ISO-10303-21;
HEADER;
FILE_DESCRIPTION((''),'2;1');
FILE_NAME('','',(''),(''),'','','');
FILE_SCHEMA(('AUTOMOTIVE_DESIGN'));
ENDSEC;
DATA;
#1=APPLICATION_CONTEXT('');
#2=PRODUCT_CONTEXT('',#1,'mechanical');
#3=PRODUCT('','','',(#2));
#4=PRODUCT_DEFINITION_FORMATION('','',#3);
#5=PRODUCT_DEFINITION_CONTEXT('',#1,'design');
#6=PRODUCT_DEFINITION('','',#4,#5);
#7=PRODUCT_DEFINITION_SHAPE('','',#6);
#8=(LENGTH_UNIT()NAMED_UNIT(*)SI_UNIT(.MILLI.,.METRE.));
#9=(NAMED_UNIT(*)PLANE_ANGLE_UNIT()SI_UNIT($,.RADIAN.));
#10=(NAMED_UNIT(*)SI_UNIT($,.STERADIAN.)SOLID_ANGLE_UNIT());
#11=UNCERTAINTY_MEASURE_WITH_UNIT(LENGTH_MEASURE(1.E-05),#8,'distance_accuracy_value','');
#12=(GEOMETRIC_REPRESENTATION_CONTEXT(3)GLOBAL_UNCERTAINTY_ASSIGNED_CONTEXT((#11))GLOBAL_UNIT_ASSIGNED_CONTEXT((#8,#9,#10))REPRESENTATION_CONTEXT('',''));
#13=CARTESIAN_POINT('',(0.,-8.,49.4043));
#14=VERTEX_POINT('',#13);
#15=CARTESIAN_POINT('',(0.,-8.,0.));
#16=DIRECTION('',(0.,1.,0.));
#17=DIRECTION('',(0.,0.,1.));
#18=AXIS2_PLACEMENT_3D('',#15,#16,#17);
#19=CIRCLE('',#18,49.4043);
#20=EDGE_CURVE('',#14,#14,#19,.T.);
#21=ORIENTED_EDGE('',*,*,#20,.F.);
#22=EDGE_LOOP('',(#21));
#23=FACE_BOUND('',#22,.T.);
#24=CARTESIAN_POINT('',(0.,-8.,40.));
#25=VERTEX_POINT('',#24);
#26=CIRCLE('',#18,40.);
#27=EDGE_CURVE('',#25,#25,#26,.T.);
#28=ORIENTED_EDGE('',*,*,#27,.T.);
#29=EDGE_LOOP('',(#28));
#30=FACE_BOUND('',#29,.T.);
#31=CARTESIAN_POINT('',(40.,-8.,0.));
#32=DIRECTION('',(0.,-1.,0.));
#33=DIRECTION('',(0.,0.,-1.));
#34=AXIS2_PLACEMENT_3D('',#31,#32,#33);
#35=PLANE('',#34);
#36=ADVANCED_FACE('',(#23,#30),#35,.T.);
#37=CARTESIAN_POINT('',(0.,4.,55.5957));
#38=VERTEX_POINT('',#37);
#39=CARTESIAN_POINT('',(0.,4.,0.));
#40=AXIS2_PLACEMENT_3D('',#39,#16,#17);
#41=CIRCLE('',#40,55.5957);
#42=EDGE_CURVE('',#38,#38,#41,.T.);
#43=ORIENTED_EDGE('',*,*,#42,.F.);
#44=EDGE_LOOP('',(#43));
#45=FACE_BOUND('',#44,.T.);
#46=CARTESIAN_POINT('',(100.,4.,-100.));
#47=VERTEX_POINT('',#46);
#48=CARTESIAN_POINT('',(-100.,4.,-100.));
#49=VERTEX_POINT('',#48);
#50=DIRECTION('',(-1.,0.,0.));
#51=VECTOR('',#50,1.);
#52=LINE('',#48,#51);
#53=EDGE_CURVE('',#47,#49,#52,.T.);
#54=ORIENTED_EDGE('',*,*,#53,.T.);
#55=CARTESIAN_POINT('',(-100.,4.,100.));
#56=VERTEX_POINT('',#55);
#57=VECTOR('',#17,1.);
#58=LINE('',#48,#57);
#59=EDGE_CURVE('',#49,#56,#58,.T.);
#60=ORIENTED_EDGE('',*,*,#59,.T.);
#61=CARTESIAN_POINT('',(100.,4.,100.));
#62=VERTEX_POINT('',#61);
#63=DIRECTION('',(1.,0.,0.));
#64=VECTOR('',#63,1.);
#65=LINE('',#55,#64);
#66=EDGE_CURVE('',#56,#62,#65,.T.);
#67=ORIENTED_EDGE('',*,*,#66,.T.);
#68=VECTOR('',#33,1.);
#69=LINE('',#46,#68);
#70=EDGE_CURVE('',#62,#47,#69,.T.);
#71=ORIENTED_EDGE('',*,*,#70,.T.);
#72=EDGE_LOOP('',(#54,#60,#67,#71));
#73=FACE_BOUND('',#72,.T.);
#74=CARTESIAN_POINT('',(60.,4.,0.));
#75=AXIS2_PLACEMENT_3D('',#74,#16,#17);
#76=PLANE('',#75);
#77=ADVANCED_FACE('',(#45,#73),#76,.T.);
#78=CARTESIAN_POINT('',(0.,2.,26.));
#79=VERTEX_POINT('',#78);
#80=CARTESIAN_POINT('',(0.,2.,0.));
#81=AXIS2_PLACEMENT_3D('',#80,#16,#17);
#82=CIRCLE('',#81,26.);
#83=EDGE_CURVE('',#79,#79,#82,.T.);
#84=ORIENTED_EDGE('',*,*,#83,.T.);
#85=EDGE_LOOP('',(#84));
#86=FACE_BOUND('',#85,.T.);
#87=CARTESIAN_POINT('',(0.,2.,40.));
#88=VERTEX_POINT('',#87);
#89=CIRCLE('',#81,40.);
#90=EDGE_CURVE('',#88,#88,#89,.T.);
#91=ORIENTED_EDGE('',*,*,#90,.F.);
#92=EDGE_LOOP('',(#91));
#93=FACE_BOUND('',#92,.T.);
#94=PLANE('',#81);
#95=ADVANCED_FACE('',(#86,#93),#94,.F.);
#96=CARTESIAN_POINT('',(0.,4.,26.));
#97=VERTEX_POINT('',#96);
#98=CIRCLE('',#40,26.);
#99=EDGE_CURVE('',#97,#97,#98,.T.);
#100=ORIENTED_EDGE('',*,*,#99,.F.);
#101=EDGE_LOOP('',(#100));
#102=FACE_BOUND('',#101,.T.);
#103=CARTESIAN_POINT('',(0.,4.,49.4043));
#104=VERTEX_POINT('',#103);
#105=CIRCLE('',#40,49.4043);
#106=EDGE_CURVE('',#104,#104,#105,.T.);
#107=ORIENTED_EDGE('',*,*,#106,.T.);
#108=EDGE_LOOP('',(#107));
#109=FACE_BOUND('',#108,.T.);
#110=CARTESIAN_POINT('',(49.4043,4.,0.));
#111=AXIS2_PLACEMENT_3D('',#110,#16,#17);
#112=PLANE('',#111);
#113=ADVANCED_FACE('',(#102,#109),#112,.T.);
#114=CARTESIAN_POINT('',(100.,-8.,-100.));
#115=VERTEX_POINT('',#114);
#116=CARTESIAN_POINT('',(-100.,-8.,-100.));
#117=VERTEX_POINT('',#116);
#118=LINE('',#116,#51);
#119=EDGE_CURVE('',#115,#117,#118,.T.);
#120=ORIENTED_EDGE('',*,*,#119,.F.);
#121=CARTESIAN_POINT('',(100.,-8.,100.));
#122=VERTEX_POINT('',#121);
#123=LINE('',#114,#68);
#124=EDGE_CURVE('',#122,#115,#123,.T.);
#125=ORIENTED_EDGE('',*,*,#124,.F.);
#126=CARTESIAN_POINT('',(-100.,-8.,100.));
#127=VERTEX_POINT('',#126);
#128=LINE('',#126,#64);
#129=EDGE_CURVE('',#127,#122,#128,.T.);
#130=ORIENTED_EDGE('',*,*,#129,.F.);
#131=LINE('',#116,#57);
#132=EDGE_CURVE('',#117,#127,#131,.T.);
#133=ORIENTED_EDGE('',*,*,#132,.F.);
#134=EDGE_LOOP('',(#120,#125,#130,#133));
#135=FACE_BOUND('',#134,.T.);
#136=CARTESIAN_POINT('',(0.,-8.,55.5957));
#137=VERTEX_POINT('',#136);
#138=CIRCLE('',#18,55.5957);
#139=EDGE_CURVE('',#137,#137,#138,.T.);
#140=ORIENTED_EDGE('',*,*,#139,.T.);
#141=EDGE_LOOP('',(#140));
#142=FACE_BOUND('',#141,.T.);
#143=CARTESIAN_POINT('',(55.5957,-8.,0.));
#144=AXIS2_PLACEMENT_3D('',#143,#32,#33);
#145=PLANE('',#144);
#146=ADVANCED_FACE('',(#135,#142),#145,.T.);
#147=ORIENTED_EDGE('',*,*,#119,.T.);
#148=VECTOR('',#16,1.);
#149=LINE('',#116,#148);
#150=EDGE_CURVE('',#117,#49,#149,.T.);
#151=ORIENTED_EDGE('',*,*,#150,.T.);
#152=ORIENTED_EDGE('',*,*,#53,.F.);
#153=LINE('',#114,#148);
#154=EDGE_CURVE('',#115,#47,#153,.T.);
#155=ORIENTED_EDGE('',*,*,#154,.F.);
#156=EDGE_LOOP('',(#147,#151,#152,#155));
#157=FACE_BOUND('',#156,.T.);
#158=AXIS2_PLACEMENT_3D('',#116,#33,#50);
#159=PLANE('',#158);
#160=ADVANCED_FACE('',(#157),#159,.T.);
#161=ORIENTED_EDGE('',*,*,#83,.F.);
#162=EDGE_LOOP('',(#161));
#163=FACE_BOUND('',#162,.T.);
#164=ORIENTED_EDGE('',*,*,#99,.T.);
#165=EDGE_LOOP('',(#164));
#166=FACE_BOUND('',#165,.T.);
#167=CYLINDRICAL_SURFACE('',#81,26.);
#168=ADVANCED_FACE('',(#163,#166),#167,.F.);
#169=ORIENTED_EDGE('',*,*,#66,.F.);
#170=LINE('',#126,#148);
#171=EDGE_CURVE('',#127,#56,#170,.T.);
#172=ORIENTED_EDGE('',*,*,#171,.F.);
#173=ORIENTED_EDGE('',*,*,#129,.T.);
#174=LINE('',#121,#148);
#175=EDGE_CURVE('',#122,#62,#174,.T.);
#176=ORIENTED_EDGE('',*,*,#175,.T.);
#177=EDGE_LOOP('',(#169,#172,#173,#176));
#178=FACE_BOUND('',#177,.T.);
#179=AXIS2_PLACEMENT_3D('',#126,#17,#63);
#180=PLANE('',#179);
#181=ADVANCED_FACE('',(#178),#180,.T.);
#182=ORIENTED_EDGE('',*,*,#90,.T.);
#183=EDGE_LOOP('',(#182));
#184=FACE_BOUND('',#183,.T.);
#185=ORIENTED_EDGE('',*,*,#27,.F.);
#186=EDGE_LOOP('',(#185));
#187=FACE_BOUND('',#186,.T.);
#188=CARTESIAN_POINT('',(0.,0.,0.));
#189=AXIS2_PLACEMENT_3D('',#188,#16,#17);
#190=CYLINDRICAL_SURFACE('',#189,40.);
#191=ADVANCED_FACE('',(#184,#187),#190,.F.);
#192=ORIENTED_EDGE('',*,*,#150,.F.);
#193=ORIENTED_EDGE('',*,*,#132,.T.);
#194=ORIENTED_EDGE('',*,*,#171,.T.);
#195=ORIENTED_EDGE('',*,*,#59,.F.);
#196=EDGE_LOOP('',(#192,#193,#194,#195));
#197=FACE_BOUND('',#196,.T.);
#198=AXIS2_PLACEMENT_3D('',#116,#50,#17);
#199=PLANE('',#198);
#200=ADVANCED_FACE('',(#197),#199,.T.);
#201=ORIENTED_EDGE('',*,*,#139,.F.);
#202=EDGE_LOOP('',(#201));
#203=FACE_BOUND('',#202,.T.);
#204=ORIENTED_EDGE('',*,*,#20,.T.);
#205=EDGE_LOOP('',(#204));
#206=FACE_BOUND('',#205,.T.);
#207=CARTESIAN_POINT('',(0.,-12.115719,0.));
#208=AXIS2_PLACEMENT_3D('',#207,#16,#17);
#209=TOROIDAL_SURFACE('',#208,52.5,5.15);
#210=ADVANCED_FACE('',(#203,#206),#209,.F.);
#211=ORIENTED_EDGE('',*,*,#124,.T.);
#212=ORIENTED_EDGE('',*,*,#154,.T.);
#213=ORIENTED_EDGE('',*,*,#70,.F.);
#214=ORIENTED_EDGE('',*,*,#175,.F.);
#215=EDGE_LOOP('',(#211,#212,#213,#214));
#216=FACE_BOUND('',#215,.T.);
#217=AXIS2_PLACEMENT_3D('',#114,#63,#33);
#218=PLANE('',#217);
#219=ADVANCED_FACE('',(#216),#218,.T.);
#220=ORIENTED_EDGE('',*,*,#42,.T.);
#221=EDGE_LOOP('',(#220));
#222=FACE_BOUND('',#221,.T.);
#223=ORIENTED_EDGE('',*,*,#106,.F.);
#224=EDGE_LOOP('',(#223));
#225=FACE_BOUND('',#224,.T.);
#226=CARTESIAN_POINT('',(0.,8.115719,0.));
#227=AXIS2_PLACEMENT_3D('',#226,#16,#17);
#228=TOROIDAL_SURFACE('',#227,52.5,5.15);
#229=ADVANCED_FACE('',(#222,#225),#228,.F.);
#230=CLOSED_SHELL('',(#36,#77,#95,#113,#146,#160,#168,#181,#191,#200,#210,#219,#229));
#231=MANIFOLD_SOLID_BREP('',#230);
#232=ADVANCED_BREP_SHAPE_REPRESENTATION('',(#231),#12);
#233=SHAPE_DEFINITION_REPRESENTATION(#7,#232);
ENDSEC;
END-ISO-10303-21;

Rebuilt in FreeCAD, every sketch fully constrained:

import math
import FreeCAD as App
import Part
import Sketcher

V = App.Vector
Q = App.Units.Quantity


def add_polygon(sketch, points):
    """Adds a closed chain of lines whose ends are joined by coincident constraints."""
    first, n = sketch.GeometryCount, len(points)
    for a, b in zip(points, points[1:] + points[:1]):
        sketch.addGeometry(Part.LineSegment(App.Vector(*a, 0), App.Vector(*b, 0)), False)
    for i in range(n):
        sketch.addConstraint(Sketcher.Constraint("Coincident", first + i, 2, first + (i + 1) % n, 1))

doc = App.newDocument("Part")
body = doc.addObject("PartDesign::Body", "Body")

# Sketch on XY plane
sketch1 = body.newObject("Sketcher::SketchObject", "Sketch")
sketch1.AttachmentSupport = (doc.getObject("XY_Plane"), [""])
sketch1.MapMode = "FlatFace"
sketch1.addGeometry(Part.LineSegment(V(40, -8, 0), V(40, 4, 0)), False)
sketch1.addGeometry(Part.LineSegment(V(40, 4, 0), V(49.4, 4, 0)), False)
sketch1.addGeometry(Part.ArcOfCircle(Part.Circle(V(52.5, 8.1, 0), V(0, 0, 1), 5.2), math.radians(-127), math.radians(-53)), False)
sketch1.addGeometry(Part.LineSegment(V(55.6, 4, 0), V(60, 4, 0)), False)
sketch1.addGeometry(Part.LineSegment(V(60, 4, 0), V(60, -8, 0)), False)
sketch1.addGeometry(Part.LineSegment(V(60, -8, 0), V(55.6, -8, 0)), False)
sketch1.addGeometry(Part.ArcOfCircle(Part.Circle(V(52.5, -12.1, 0), V(0, 0, 1), 5.2), math.radians(53), math.radians(127)), False)
sketch1.addGeometry(Part.LineSegment(V(49.4, -8, 0), V(40, -8, 0)), False)
sketch1.addConstraint(Sketcher.Constraint("Coincident", 0, 2, 1, 1))
sketch1.addConstraint(Sketcher.Constraint("Coincident", 1, 2, 2, 1))
sketch1.addConstraint(Sketcher.Constraint("Coincident", 2, 2, 3, 1))
sketch1.addConstraint(Sketcher.Constraint("Coincident", 3, 2, 4, 1))
sketch1.addConstraint(Sketcher.Constraint("Coincident", 4, 2, 5, 1))
sketch1.addConstraint(Sketcher.Constraint("Coincident", 5, 2, 6, 1))
sketch1.addConstraint(Sketcher.Constraint("Coincident", 6, 2, 7, 1))
sketch1.addConstraint(Sketcher.Constraint("Coincident", 7, 2, 0, 1))
sketch1.addConstraint(Sketcher.Constraint("Vertical", 0))
sketch1.addConstraint(Sketcher.Constraint("Horizontal", 1))
sketch1.addConstraint(Sketcher.Constraint("Horizontal", 3))
sketch1.addConstraint(Sketcher.Constraint("Vertical", 4))
sketch1.addConstraint(Sketcher.Constraint("Horizontal", 5))
sketch1.addConstraint(Sketcher.Constraint("Horizontal", 7))
sketch1.addConstraint(Sketcher.Constraint("Equal", 2, 6))
sketch1.addConstraint(Sketcher.Constraint("Horizontal", 1, 2, 2, 2))
sketch1.addConstraint(Sketcher.Constraint("Horizontal", 5, 2, 6, 2))
sketch1.addConstraint(Sketcher.Constraint("Vertical", 2, 3, 6, 3))
sketch1.addConstraint(Sketcher.Constraint("Vertical", 2, 2, 5, 2))
sketch1.addConstraint(Sketcher.Constraint("DistanceY", 0, 1, 0, 2, Q("12 mm")))
sketch1.addConstraint(Sketcher.Constraint("Radius", 2, Q("5.15 mm")))
sketch1.addConstraint(Sketcher.Constraint("DistanceX", -1, 1, 0, 2, Q("40 mm")))
sketch1.addConstraint(Sketcher.Constraint("DistanceY", -1, 1, 0, 2, Q("4 mm")))
sketch1.addConstraint(Sketcher.Constraint("DistanceX", -1, 1, 3, 2, Q("60 mm")))
sketch1.addConstraint(Sketcher.Constraint("DistanceX", -1, 1, 2, 3, Q("52.5 mm")))
sketch1.addConstraint(Sketcher.Constraint("DistanceX", 1, 1, 1, 2, Q("9.4043 mm")))
revolution = body.newObject("PartDesign::Revolution", "Revolution")
revolution.Profile = sketch1
revolution.ReferenceAxis = (sketch1, ["V_Axis"])
revolution.Angle = 360

# Sketch on XZ plane
sketch2 = body.newObject("Sketcher::SketchObject", "Sketch001")
sketch2.AttachmentSupport = (doc.getObject("XZ_Plane"), [""])
sketch2.MapMode = "FlatFace"
sketch2.AttachmentOffset = App.Placement(V(0, 0, -4), App.Rotation())
add_polygon(sketch2, [(-100, -100), (-100, 100), (100, 100), (100, -100)])  # lines 0-3
sketch2.addGeometry(Part.Circle(V(0, 0, 0), V(0, 0, 1), 60), False)  # 4
sketch2.addConstraint(Sketcher.Constraint("Vertical", 0))
sketch2.addConstraint(Sketcher.Constraint("Horizontal", 1))
sketch2.addConstraint(Sketcher.Constraint("Vertical", 2))
sketch2.addConstraint(Sketcher.Constraint("Horizontal", 3))
sketch2.addConstraint(Sketcher.Constraint("Coincident", 4, 3, -1, 1))
sketch2.addConstraint(Sketcher.Constraint("Symmetric", 0, 2, 2, 2, -1, 1))
sketch2.addConstraint(Sketcher.Constraint("Equal", 3, 0))
sketch2.addConstraint(Sketcher.Constraint("Diameter", 4, Q("120 mm")))
sketch2.addConstraint(Sketcher.Constraint("DistanceX", 1, 1, 1, 2, Q("200 mm")))
pad1 = body.newObject("PartDesign::Pad", "Pad")
pad1.Profile = sketch2
pad1.Length = 12

# Sketch on XZ plane
sketch3 = body.newObject("Sketcher::SketchObject", "Sketch002")
sketch3.AttachmentSupport = (doc.getObject("XZ_Plane"), [""])
sketch3.MapMode = "FlatFace"
sketch3.AttachmentOffset = App.Placement(V(0, 0, -2), App.Rotation())
sketch3.addGeometry(Part.Circle(V(0, 0, 0), V(0, 0, 1), 40), False)
sketch3.addGeometry(Part.Circle(V(0, 0, 0), V(0, 0, 1), 26), False)
sketch3.addConstraint(Sketcher.Constraint("Coincident", 0, 3, -1, 1))
sketch3.addConstraint(Sketcher.Constraint("Coincident", 1, 3, -1, 1))
sketch3.addConstraint(Sketcher.Constraint("Diameter", 0, Q("80 mm")))
sketch3.addConstraint(Sketcher.Constraint("Diameter", 1, Q("52 mm")))
pad2 = body.newObject("PartDesign::Pad", "Pad001")
pad2.Profile = sketch3
pad2.Length = 2
pad2.Reversed = True

doc.recompute()
